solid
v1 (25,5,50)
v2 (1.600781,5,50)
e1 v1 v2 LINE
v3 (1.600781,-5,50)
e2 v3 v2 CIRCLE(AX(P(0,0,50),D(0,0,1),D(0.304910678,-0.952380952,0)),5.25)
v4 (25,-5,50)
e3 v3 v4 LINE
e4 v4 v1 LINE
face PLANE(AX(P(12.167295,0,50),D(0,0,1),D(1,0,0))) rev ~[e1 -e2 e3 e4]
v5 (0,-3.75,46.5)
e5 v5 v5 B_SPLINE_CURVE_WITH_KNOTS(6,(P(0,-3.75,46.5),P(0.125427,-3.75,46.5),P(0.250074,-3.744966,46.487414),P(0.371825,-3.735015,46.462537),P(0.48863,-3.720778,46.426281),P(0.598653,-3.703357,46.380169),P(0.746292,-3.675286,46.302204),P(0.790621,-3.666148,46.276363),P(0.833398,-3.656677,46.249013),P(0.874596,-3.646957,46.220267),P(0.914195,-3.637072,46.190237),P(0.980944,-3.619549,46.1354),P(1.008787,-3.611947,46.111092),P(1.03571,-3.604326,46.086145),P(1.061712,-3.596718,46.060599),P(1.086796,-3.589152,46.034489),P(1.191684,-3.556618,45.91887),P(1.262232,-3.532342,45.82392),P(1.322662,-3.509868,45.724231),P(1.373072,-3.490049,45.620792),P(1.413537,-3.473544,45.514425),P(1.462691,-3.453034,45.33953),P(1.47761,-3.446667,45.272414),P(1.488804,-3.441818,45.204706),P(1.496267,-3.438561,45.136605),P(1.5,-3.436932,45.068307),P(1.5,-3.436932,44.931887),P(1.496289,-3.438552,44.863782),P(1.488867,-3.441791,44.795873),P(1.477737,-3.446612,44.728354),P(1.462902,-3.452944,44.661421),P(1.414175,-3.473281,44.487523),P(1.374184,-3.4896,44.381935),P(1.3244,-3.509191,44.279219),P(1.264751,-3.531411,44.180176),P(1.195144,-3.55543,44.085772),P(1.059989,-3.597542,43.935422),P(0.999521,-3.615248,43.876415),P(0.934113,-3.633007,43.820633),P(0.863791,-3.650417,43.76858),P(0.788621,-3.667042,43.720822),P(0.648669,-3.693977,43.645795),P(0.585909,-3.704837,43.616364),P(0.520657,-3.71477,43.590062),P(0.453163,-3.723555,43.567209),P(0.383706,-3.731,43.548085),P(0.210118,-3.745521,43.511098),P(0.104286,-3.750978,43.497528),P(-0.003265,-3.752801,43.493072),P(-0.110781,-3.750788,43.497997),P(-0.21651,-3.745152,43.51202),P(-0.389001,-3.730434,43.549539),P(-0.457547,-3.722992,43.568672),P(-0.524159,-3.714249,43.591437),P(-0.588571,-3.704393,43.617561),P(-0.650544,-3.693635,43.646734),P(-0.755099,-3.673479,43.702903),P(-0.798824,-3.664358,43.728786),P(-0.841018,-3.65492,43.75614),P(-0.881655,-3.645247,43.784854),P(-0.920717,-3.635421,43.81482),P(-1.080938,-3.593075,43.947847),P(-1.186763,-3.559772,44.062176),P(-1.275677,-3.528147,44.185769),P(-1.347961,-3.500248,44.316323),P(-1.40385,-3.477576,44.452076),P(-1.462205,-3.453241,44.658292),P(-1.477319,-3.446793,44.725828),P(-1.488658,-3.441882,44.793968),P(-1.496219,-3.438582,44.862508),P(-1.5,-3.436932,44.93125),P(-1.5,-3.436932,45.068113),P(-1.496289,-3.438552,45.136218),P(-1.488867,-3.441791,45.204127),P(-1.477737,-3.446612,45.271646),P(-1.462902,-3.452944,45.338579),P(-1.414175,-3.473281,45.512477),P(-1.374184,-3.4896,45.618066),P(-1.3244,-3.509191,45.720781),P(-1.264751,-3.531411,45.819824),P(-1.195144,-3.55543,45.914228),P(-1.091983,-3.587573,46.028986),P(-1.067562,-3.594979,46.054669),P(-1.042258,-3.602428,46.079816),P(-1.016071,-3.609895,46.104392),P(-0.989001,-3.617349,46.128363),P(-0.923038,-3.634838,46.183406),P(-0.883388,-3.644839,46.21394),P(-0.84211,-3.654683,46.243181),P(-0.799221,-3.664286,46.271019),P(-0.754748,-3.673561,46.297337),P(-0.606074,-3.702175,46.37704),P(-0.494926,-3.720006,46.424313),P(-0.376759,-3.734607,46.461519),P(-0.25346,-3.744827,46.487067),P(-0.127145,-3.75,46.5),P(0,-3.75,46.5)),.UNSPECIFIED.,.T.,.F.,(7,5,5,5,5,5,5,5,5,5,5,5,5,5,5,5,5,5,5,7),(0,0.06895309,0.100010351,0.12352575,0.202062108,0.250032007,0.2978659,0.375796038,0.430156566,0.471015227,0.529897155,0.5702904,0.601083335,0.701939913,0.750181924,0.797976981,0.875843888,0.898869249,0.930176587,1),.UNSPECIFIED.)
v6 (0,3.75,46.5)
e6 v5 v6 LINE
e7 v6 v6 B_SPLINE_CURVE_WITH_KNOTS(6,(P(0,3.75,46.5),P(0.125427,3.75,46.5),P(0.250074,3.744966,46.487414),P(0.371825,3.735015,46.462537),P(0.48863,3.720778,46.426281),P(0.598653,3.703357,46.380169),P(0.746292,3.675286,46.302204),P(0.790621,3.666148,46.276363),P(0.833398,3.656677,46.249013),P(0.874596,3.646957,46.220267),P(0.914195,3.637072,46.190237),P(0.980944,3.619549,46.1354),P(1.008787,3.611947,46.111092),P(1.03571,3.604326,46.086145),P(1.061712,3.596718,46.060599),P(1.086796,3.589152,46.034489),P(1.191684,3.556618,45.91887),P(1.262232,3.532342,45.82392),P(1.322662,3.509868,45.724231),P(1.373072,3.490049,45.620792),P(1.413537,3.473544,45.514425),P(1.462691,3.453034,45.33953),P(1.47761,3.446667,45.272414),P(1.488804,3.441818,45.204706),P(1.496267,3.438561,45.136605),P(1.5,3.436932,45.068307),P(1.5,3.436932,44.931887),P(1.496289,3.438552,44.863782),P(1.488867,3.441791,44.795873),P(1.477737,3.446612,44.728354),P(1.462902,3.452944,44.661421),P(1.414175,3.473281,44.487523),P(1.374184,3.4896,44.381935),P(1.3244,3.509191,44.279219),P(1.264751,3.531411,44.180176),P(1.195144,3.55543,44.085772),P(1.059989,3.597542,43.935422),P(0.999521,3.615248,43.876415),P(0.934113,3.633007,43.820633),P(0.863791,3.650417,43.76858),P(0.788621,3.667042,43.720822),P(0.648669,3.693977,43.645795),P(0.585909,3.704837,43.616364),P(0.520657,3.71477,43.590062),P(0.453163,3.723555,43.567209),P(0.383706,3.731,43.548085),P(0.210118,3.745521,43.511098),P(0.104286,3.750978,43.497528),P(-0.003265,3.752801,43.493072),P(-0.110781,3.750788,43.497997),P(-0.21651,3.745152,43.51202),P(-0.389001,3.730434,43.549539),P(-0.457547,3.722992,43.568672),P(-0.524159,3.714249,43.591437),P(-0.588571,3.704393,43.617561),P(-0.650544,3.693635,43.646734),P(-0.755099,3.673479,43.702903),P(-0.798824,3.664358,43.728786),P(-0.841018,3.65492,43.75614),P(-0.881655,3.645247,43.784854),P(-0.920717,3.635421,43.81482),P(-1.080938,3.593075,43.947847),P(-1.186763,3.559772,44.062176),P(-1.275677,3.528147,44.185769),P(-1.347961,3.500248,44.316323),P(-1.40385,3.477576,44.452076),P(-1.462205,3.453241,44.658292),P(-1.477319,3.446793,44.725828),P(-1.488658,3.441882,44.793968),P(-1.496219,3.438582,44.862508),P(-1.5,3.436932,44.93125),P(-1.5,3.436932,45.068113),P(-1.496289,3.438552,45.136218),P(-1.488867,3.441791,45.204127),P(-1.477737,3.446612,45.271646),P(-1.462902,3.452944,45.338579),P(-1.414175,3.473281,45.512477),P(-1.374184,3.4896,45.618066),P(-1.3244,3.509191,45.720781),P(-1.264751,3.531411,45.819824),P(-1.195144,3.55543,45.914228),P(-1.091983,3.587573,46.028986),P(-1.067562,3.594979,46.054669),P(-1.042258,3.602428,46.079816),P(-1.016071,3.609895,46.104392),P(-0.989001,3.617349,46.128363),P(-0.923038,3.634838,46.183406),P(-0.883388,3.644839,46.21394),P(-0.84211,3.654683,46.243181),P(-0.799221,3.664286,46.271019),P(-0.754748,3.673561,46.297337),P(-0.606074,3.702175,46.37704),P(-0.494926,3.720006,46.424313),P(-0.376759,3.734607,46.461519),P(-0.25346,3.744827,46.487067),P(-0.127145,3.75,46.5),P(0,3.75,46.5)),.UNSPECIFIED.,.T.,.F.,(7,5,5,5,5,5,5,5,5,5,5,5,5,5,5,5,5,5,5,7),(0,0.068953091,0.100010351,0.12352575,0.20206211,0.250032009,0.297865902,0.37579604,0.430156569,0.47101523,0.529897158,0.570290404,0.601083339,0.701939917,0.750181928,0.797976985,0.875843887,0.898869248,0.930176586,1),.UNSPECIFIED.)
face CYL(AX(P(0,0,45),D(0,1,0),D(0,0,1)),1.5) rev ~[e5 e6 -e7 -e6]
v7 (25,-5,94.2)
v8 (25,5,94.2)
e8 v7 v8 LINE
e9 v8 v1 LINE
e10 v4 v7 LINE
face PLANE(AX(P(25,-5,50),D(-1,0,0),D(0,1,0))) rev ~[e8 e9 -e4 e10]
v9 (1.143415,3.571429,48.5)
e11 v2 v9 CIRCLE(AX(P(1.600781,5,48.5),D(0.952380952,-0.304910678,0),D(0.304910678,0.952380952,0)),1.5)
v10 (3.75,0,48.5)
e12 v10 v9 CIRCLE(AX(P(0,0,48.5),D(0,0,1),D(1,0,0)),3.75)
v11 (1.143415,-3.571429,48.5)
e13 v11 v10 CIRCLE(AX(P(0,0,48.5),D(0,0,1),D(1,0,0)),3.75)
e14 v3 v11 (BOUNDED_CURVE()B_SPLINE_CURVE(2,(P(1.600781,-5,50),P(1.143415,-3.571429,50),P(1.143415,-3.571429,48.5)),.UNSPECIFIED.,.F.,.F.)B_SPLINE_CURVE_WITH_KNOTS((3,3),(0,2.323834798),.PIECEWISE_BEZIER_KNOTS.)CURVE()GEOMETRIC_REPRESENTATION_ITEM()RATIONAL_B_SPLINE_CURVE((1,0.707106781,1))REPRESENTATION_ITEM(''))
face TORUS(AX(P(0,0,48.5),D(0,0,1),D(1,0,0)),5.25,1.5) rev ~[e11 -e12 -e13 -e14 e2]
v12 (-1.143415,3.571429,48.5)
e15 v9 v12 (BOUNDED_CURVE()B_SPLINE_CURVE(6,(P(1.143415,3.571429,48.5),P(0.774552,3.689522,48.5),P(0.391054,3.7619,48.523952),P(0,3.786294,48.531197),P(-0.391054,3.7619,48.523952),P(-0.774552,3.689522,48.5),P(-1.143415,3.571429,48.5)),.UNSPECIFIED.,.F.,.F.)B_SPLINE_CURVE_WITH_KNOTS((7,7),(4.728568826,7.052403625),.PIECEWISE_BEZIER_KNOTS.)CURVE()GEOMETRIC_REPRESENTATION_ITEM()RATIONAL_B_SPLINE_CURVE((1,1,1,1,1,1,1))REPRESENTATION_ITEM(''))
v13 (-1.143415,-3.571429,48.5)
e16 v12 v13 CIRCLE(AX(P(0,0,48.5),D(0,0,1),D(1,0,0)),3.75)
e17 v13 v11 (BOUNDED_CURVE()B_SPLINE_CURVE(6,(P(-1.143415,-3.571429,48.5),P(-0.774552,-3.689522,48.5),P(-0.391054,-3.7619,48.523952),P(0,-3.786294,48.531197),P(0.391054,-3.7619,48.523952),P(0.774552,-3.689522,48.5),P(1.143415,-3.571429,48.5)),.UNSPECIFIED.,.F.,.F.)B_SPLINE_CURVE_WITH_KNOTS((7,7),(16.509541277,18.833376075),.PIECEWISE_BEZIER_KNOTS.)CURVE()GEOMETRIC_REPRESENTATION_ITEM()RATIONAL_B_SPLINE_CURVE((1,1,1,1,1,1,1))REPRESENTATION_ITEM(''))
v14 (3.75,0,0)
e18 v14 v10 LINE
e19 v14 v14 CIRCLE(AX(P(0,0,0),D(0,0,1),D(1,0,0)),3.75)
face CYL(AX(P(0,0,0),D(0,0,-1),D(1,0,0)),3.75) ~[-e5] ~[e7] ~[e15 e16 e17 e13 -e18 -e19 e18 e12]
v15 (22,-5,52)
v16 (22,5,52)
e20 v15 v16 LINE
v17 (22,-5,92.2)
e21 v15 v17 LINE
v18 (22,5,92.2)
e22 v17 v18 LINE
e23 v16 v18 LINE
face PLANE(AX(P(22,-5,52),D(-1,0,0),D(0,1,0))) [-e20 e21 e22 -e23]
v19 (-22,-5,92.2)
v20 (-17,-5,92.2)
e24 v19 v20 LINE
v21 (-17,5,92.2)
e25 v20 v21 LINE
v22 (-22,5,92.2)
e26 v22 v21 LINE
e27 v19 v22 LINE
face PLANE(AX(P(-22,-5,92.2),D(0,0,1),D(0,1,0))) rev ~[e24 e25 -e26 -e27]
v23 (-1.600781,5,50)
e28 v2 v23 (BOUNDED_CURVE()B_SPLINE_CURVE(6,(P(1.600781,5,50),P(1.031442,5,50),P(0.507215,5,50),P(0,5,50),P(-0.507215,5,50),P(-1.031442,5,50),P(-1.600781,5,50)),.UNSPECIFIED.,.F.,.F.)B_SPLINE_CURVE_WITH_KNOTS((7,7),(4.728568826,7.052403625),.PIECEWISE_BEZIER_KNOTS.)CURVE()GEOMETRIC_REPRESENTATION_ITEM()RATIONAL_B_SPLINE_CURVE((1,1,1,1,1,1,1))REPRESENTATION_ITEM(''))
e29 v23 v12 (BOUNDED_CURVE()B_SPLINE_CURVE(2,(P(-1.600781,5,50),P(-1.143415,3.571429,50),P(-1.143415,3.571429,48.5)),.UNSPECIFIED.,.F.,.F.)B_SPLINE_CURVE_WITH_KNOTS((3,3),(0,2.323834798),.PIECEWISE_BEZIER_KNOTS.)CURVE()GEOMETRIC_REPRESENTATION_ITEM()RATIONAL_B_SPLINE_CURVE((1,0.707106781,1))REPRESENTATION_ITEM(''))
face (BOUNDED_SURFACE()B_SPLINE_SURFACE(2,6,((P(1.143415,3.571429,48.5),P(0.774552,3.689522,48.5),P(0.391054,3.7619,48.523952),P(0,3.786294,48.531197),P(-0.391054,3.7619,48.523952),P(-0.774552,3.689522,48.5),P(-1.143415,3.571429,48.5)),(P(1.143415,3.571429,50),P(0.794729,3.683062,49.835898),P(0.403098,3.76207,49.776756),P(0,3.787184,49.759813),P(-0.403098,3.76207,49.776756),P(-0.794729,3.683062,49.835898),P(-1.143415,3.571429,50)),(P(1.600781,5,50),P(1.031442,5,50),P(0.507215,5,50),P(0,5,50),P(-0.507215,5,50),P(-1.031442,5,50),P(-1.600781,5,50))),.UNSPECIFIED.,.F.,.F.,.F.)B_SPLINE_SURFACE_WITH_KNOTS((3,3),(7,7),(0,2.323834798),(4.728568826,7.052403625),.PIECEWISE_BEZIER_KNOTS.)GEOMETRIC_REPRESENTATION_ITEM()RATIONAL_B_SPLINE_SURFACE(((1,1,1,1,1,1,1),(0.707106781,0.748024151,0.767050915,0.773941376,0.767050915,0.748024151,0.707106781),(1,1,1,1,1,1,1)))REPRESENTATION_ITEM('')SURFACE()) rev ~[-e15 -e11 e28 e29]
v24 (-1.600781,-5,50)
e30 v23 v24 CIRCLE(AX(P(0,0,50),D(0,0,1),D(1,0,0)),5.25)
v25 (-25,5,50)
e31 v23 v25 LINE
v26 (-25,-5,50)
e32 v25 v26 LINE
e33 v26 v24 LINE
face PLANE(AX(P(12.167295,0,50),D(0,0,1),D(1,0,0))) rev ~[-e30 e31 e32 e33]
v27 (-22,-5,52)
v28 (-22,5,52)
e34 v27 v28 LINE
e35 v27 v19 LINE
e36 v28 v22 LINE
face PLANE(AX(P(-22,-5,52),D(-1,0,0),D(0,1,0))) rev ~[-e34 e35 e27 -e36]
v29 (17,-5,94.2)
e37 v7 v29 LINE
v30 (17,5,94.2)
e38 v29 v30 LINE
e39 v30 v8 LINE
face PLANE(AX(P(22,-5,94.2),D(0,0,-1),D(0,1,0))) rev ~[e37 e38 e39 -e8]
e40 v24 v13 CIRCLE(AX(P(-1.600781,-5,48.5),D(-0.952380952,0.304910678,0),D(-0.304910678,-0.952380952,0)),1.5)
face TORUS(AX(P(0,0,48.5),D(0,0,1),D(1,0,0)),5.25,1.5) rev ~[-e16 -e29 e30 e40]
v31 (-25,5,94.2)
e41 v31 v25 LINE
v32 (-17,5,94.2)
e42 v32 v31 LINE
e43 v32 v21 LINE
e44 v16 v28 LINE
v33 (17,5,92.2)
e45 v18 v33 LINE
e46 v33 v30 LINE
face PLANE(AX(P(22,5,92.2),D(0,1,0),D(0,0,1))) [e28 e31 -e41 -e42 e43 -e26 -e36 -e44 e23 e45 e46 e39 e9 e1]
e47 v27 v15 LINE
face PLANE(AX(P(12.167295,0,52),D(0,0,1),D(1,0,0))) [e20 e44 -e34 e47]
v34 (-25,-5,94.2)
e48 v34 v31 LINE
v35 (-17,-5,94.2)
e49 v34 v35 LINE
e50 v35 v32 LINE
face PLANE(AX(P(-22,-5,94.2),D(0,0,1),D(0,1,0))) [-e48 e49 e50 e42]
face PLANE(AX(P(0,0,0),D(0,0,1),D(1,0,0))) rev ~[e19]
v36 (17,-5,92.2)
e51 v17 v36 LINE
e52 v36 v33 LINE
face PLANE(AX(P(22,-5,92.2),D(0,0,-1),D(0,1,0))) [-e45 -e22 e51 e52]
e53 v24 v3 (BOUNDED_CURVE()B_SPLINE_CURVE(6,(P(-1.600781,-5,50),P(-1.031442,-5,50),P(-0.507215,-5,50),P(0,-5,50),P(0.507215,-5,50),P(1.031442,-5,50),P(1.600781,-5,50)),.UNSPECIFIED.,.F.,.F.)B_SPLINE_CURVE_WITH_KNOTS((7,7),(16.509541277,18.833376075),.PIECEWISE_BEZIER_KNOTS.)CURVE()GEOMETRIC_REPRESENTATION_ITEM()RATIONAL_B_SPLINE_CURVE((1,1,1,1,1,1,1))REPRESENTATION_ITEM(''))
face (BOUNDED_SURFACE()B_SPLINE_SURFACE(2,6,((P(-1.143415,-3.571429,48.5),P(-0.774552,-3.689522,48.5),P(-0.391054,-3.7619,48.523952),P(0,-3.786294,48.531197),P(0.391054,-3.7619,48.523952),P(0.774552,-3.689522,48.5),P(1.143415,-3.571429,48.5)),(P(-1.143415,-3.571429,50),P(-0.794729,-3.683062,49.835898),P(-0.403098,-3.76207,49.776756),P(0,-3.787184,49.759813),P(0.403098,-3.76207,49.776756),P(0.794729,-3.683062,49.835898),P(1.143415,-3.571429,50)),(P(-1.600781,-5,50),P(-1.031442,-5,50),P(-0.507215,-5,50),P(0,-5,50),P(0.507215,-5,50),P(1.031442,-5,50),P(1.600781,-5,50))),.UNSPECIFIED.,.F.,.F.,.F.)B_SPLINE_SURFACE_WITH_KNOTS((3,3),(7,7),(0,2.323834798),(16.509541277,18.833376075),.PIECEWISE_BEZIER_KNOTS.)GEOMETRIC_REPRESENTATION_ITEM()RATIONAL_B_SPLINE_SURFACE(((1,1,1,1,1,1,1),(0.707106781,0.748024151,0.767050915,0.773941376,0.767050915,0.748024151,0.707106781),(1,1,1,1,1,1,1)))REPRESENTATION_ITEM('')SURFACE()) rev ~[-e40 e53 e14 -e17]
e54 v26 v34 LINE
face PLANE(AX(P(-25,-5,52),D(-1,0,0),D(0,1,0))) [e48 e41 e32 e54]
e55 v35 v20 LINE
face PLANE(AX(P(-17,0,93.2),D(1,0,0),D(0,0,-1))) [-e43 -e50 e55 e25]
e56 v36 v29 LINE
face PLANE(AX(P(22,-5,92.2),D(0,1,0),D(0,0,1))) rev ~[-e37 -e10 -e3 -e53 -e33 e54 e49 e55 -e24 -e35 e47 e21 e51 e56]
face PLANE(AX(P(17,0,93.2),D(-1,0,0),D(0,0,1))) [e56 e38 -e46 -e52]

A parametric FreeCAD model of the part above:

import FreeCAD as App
import Part
import Sketcher


def edges_at(feature, points):
    """Names of the edges that pass closest to the given points."""
    edges = feature.Shape.Edges
    near = lambda p: min(range(len(edges)), key=lambda i: edges[i].distToShape(Part.Vertex(*p))[0])
    return sorted({f"Edge{near(p) + 1}" for p in points})

doc = App.newDocument("Part")
body = doc.addObject("PartDesign::Body", "Body")

sketch1 = body.newObject("Sketcher::SketchObject", "Sketch")
sketch1.AttachmentSupport = (doc.getObject("XY_Plane"), [""])
sketch1.MapMode = "FlatFace"
sketch1.addGeometry(Part.Circle(App.Vector(0, 0, 0), App.Vector(0, 0, 1), 3.8), False)
sketch1.addConstraint([
    Sketcher.Constraint("Coincident", 0, 3, -1, 1),
    Sketcher.Constraint("Diameter", 0, 7.5),
])
pad1 = body.newObject("PartDesign::Pad", "Pad")
pad1.Profile = sketch1
pad1.Length = 50

sketch2 = body.newObject("Sketcher::SketchObject", "Sketch001")
sketch2.AttachmentSupport = (doc.getObject("XY_Plane"), [""])
sketch2.MapMode = "FlatFace"
sketch2.AttachmentOffset = App.Placement(App.Vector(0, 0, 50), App.Rotation())
sketch2.addGeometry([
    Part.LineSegment(App.Vector(25, -5, 0), App.Vector(25, 5, 0)),
    Part.LineSegment(App.Vector(25, 5, 0), App.Vector(-25, 5, 0)),
    Part.LineSegment(App.Vector(-25, 5, 0), App.Vector(-25, -5, 0)),
    Part.LineSegment(App.Vector(-25, -5, 0), App.Vector(25, -5, 0)),
], False)
sketch2.addConstraint([
    Sketcher.Constraint("Coincident", 0, 2, 1, 1),
    Sketcher.Constraint("Coincident", 1, 2, 2, 1),
    Sketcher.Constraint("Coincident", 2, 2, 3, 1),
    Sketcher.Constraint("Coincident", 3, 2, 0, 1),
    Sketcher.Constraint("Vertical", 0),
    Sketcher.Constraint("Horizontal", 1),
    Sketcher.Constraint("Vertical", 2),
    Sketcher.Constraint("Horizontal", 3),
    Sketcher.Constraint("Symmetric", 0, 2, 2, 2, -1, 1),
    Sketcher.Constraint("DistanceX", 1, 2, 1, 1, 50.0),
    Sketcher.Constraint("DistanceY", 0, 1, 0, 2, 10.0),
])
pad2 = body.newObject("PartDesign::Pad", "Pad001")
pad2.Profile = sketch2
pad2.Length = 2

sketch3 = body.newObject("Sketcher::SketchObject", "Sketch002")
sketch3.AttachmentSupport = (doc.getObject("XY_Plane"), [""])
sketch3.MapMode = "FlatFace"
sketch3.AttachmentOffset = App.Placement(App.Vector(0, 0, 52), App.Rotation())
sketch3.addGeometry([
    Part.LineSegment(App.Vector(-25, 5, 0), App.Vector(-25, -5, 0)),
    Part.LineSegment(App.Vector(-25, -5, 0), App.Vector(-22, -5, 0)),
    Part.LineSegment(App.Vector(-22, -5, 0), App.Vector(-22, 5, 0)),
    Part.LineSegment(App.Vector(-22, 5, 0), App.Vector(-25, 5, 0)),
    Part.LineSegment(App.Vector(22, 5, 0), App.Vector(22, -5, 0)),
    Part.LineSegment(App.Vector(22, -5, 0), App.Vector(25, -5, 0)),
    Part.LineSegment(App.Vector(25, -5, 0), App.Vector(25, 5, 0)),
    Part.LineSegment(App.Vector(25, 5, 0), App.Vector(22, 5, 0)),
], False)
sketch3.addConstraint([
    Sketcher.Constraint("Coincident", 0, 2, 1, 1),
    Sketcher.Constraint("Coincident", 1, 2, 2, 1),
    Sketcher.Constraint("Coincident", 2, 2, 3, 1),
    Sketcher.Constraint("Coincident", 3, 2, 0, 1),
    Sketcher.Constraint("Coincident", 4, 2, 5, 1),
    Sketcher.Constraint("Coincident", 5, 2, 6, 1),
    Sketcher.Constraint("Coincident", 6, 2, 7, 1),
    Sketcher.Constraint("Coincident", 7, 2, 4, 1),
    Sketcher.Constraint("Vertical", 0),
    Sketcher.Constraint("Horizontal", 1),
    Sketcher.Constraint("Vertical", 2),
    Sketcher.Constraint("Horizontal", 3),
    Sketcher.Constraint("Vertical", 4),
    Sketcher.Constraint("Horizontal", 5),
    Sketcher.Constraint("Vertical", 6),
    Sketcher.Constraint("Horizontal", 7),
    Sketcher.Constraint("Symmetric", 2, 2, 4, 2, -1, 1),
    Sketcher.Constraint("Symmetric", 0, 2, 6, 2, -1, 1),
    Sketcher.Constraint("Horizontal", 1, 2, 4, 2),
    Sketcher.Constraint("DistanceX", 1, 1, 1, 2, 3.0),
    Sketcher.Constraint("DistanceY", 0, 2, 0, 1, 10.0),
    Sketcher.Constraint("DistanceX", 0, 2, -1, 1, 25.0),
])
pad3 = body.newObject("PartDesign::Pad", "Pad002")
pad3.Profile = sketch3
pad3.Length = 42.2

sketch4 = body.newObject("Sketcher::SketchObject", "Sketch003")
sketch4.AttachmentSupport = (doc.getObject("YZ_Plane"), [""])
sketch4.MapMode = "FlatFace"
sketch4.AttachmentOffset = App.Placement(App.Vector(0, 0, -22), App.Rotation())
sketch4.addGeometry([
    Part.LineSegment(App.Vector(5, 94.2, 0), App.Vector(-5, 94.2, 0)),
    Part.LineSegment(App.Vector(-5, 94.2, 0), App.Vector(-5, 92.2, 0)),
    Part.LineSegment(App.Vector(-5, 92.2, 0), App.Vector(5, 92.2, 0)),
    Part.LineSegment(App.Vector(5, 92.2, 0), App.Vector(5, 94.2, 0)),
], False)
sketch4.addConstraint([
    Sketcher.Constraint("Coincident", 0, 2, 1, 1),
    Sketcher.Constraint("Coincident", 1, 2, 2, 1),
    Sketcher.Constraint("Coincident", 2, 2, 3, 1),
    Sketcher.Constraint("Coincident", 3, 2, 0, 1),
    Sketcher.Constraint("Horizontal", 0),
    Sketcher.Constraint("Vertical", 1),
    Sketcher.Constraint("Horizontal", 2),
    Sketcher.Constraint("Vertical", 3),
    Sketcher.Constraint("DistanceX", 0, 2, 0, 1, 10.0),
    Sketcher.Constraint("DistanceY", 1, 2, 1, 1, 2.0),
    Sketcher.Constraint("DistanceX", 0, 2, -1, 1, 5.0),
    Sketcher.Constraint("DistanceY", -1, 1, 0, 2, 94.2),
])
pad4 = body.newObject("PartDesign::Pad", "Pad003")
pad4.Profile = sketch4
pad4.Length = 5

sketch5 = body.newObject("Sketcher::SketchObject", "Sketch004")
sketch5.AttachmentSupport = (doc.getObject("YZ_Plane"), [""])
sketch5.MapMode = "FlatFace"
sketch5.AttachmentOffset = App.Placement(App.Vector(0, 0, 22), App.Rotation())
sketch5.addGeometry([
    Part.LineSegment(App.Vector(5, 92.2, 0), App.Vector(-5, 92.2, 0)),
    Part.LineSegment(App.Vector(-5, 92.2, 0), App.Vector(-5, 94.2, 0)),
    Part.LineSegment(App.Vector(-5, 94.2, 0), App.Vector(5, 94.2, 0)),
    Part.LineSegment(App.Vector(5, 94.2, 0), App.Vector(5, 92.2, 0)),
], False)
sketch5.addConstraint([
    Sketcher.Constraint("Coincident", 0, 2, 1, 1),
    Sketcher.Constraint("Coincident", 1, 2, 2, 1),
    Sketcher.Constraint("Coincident", 2, 2, 3, 1),
    Sketcher.Constraint("Coincident", 3, 2, 0, 1),
    Sketcher.Constraint("Horizontal", 0),
    Sketcher.Constraint("Vertical", 1),
    Sketcher.Constraint("Horizontal", 2),
    Sketcher.Constraint("Vertical", 3),
    Sketcher.Constraint("DistanceX", 0, 2, 0, 1, 10.0),
    Sketcher.Constraint("DistanceY", 1, 1, 1, 2, 2.0),
    Sketcher.Constraint("DistanceX", 0, 2, -1, 1, 5.0),
    Sketcher.Constraint("DistanceY", -1, 1, 0, 2, 92.2),
])
pad5 = body.newObject("PartDesign::Pad", "Pad004")
pad5.Profile = sketch5
pad5.Length = 5
pad5.Reversed = True
doc.recompute()

fillet = body.newObject("PartDesign::Fillet", "Fillet")
fillet.Base = (pad5, edges_at(pad5, [(-3.75, 0, 50)]))
fillet.Radius = 1.5

sketch6 = body.newObject("Sketcher::SketchObject", "Sketch005")
sketch6.AttachmentSupport = (doc.getObject("XZ_Plane"), [""])
sketch6.MapMode = "FlatFace"
sketch6.addGeometry(Part.Circle(App.Vector(0, 45, 0), App.Vector(0, 0, 1), 1.5), False)
sketch6.addConstraint([
    Sketcher.Constraint("PointOnObject", 0, 3, -2),
    Sketcher.Constraint("Diameter", 0, 3.0),
    Sketcher.Constraint("DistanceY", -1, 1, 0, 3, 45.0),
])
pocket1 = body.newObject("PartDesign::Pocket", "Pocket")
pocket1.Profile = sketch6
pocket1.Length = 10
pocket1.Midplane = True

doc.recompute()
